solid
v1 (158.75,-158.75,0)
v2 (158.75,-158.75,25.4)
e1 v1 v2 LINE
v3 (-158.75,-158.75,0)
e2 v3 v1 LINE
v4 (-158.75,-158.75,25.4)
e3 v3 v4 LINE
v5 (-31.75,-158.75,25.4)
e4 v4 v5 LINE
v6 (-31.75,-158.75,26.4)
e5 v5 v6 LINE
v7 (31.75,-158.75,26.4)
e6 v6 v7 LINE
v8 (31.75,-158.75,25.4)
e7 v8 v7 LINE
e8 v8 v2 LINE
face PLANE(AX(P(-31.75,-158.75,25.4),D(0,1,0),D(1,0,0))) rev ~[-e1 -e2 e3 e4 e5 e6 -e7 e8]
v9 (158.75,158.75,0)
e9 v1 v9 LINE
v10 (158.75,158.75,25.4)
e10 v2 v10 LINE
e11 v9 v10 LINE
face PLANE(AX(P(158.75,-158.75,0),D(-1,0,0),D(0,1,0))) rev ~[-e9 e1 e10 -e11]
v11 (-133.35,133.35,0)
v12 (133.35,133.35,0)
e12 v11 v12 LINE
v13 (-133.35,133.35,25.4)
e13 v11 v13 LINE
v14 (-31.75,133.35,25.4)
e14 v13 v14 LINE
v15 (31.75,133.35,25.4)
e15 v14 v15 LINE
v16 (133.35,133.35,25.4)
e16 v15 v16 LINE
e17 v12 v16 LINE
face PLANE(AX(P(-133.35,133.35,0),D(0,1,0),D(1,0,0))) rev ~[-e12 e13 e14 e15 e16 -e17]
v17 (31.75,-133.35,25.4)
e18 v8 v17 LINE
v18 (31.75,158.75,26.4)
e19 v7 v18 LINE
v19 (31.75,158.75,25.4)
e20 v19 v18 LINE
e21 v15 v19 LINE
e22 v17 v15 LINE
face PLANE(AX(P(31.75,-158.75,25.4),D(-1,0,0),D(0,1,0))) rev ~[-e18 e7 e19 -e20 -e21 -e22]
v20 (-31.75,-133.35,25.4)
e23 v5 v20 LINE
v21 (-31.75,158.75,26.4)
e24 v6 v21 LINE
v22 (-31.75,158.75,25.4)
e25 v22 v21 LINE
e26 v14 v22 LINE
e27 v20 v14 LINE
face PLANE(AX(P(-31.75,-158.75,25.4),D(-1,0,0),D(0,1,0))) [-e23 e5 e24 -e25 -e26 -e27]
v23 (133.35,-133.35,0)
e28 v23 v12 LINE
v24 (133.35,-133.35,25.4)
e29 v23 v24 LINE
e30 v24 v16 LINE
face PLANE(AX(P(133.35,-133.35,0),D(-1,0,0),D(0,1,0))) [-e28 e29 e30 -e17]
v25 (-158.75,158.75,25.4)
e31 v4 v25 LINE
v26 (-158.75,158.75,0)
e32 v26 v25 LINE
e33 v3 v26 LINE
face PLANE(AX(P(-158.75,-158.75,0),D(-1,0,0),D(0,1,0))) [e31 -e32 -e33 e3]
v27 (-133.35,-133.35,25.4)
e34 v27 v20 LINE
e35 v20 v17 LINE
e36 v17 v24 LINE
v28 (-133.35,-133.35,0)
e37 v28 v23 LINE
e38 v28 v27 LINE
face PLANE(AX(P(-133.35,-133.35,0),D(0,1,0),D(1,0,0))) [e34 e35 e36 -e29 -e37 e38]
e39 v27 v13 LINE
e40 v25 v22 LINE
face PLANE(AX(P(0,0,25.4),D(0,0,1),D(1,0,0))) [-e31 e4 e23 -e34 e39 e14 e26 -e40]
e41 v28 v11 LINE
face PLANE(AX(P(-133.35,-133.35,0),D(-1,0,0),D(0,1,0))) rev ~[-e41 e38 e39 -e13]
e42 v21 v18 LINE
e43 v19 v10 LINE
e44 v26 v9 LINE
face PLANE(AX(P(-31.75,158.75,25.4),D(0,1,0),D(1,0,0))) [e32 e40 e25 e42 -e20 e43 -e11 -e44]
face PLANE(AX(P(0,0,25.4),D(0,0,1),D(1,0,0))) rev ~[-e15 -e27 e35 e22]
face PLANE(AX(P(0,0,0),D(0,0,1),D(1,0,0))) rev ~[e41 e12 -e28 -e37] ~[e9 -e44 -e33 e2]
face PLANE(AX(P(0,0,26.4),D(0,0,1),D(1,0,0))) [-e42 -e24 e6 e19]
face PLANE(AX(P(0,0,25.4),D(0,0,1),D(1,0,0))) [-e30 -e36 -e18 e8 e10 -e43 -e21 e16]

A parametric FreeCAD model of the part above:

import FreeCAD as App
import Part
import Sketcher
Q = App.Units.Quantity


def add_polygon(sketch, points):
    """Adds a closed chain of lines whose ends are joined by coincident constraints."""
    first, n = sketch.GeometryCount, len(points)
    for a, b in zip(points, points[1:] + points[:1]):
        sketch.addGeometry(Part.LineSegment(App.Vector(*a, 0), App.Vector(*b, 0)), False)
    for i in range(n):
        sketch.addConstraint(Sketcher.Constraint("Coincident", first + i, 2, first + (i + 1) % n, 1))

doc = App.newDocument("Part")
body = doc.addObject("PartDesign::Body", "Body")

sketch1 = body.newObject("Sketcher::SketchObject", "Sketch")
sketch1.AttachmentSupport = (doc.getObject("XY_Plane"), [""])
sketch1.MapMode = "FlatFace"
add_polygon(sketch1, [(-158.75, 158.75), (-158.75, -158.75), (158.75, -158.75), (158.75, 158.75)])
add_polygon(sketch1, [(133.35, -133.35), (-133.35, -133.35), (-133.35, 133.35), (133.35, 133.35)])
sketch1.addConstraint([
    Sketcher.Constraint("Vertical", 0),
    Sketcher.Constraint("Horizontal", 1),
    Sketcher.Constraint("Vertical", 2),
    Sketcher.Constraint("Horizontal", 3),
    Sketcher.Constraint("Horizontal", 4),
    Sketcher.Constraint("Vertical", 5),
    Sketcher.Constraint("Horizontal", 6),
    Sketcher.Constraint("Vertical", 7),
    Sketcher.Constraint("Symmetric", 0, 2, 2, 2, -1, 1),
    Sketcher.Constraint("Symmetric", 4, 2, 6, 2, -1, 1),
    Sketcher.Constraint("Equal", 3, 0),
    Sketcher.Constraint("Equal", 6, 5),
    Sketcher.Constraint("DistanceX", 1, 1, 1, 2, Q("12.5 in")),
    Sketcher.Constraint("DistanceX", 4, 2, 4, 1, Q("10.5 in")),
])
pad1 = body.newObject("PartDesign::Pad", "Pad")
pad1.Profile = sketch1
pad1.Length = Q("1 in")

sketch2 = body.newObject("Sketcher::SketchObject", "Sketch001")
sketch2.AttachmentSupport = (doc.getObject("XY_Plane"), [""])
sketch2.MapMode = "FlatFace"
sketch2.AttachmentOffset = App.Placement(App.Vector(0, 0, 1 * 25.4), App.Rotation())
add_polygon(sketch2, [(-31.75, 158.75), (-31.75, -158.75), (31.75, -158.75), (31.75, 158.75)])
sketch2.addConstraint([
    Sketcher.Constraint("Vertical", 0),
    Sketcher.Constraint("Horizontal", 1),
    Sketcher.Constraint("Vertical", 2),
    Sketcher.Constraint("Horizontal", 3),
    Sketcher.Constraint("Symmetric", 0, 2, 2, 2, -1, 1),
    Sketcher.Constraint("DistanceX", 1, 1, 1, 2, Q("2.5 in")),
    Sketcher.Constraint("DistanceY", 0, 2, 0, 1, Q("12.5 in")),
])
pad2 = body.newObject("PartDesign::Pad", "Pad001")
pad2.Profile = sketch2
pad2.Length = 1

doc.recompute()
